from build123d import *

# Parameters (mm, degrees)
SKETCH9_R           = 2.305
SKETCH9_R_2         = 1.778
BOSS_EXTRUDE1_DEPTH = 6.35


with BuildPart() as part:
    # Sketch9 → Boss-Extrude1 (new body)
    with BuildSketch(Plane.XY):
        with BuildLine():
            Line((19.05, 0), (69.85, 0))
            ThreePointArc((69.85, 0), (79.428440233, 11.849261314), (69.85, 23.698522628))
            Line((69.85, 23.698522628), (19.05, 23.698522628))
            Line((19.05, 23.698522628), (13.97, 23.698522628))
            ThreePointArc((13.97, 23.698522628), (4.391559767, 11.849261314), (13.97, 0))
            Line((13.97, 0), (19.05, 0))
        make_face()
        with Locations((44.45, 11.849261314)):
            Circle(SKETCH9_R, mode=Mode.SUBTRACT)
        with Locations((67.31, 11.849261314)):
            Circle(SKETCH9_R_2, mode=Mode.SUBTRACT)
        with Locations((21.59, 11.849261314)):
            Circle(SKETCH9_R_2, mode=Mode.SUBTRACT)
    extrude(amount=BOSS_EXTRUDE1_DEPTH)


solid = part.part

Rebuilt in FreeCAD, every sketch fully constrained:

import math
import FreeCAD as App
import Part
import Sketcher
from FreeCAD import Vector
Q = App.Units.Quantity

doc = App.newDocument("Part")
body = doc.addObject("PartDesign::Body", "Body")

sketch1 = doc.addObject("Sketcher::SketchObject", "Sketch")
body.addObject(sketch1)
sketch1.AttachmentSupport = (doc.XY_Plane, [""])
sketch1.MapMode = "FlatFace"
sketch1.addGeometry([
    Part.ArcOfCircle(Part.Circle(Vector(67.3, 11.8, 0), Vector(0, 0, 1), 12.1), math.radians(-78), math.radians(78)),
    Part.LineSegment(Vector(69.8, 23.7, 0), Vector(14, 23.7, 0)),
    Part.ArcOfCircle(Part.Circle(Vector(16.5, 11.8, 0), Vector(0, 0, 1), 12.1), math.radians(102), math.radians(258)),
    Part.LineSegment(Vector(14, 0, 0), Vector(69.8, 0, 0)),
    Part.Circle(Vector(21.6, 11.8, 0), Vector(0, 0, 1), 1.8),
    Part.Circle(Vector(44.5, 11.8, 0), Vector(0, 0, 1), 2.3),
    Part.Circle(Vector(67.3, 11.8, 0), Vector(0, 0, 1), 1.8),
], False)
sketch1.addConstraint([
    Sketcher.Constraint("Coincident", 0, 2, 1, 1),
    Sketcher.Constraint("Coincident", 1, 2, 2, 1),
    Sketcher.Constraint("Coincident", 2, 2, 3, 1),
    Sketcher.Constraint("Coincident", 3, 2, 0, 1),
    Sketcher.Constraint("Horizontal", 1),
    Sketcher.Constraint("Horizontal", 3),
    Sketcher.Constraint("Coincident", 6, 3, 0, 3),
    Sketcher.Constraint("Equal", 0, 2),
    Sketcher.Constraint("Equal", 4, 6),
    Sketcher.Constraint("PointOnObject", 2, 2, -1),
    Sketcher.Constraint("Horizontal", 0, 3, 2, 3),
    Sketcher.Constraint("Horizontal", 2, 3, 4, 3),
    Sketcher.Constraint("Horizontal", 4, 3, 5, 3),
    Sketcher.Constraint("Vertical", 1, 2, 2, 2),
    Sketcher.Constraint("Diameter", 4, Q("0.14 in")),
    Sketcher.Constraint("DistanceX", 1, 2, 1, 1, Q("2.2 in")),
    Sketcher.Constraint("DistanceX", 2, 3, 0, 3, Q("2 in")),
    Sketcher.Constraint("DistanceX", 5, 3, 0, 2, Q("1 in")),
    Sketcher.Constraint("DistanceX", 2, 3, 4, 3, Q("0.2 in")),
    Sketcher.Constraint("Diameter", 5, Q("4.61 mm")),
    Sketcher.Constraint("DistanceX", -1, 1, 0, 3, Q("2.65 in")),
    Sketcher.Constraint("Radius", 0, Q("12.11844 mm")),
])
pad1 = doc.addObject("PartDesign::Pad", "Pad")
body.addObject(pad1)
pad1.Profile = sketch1
pad1.Length = Q("0.25 in")

doc.recompute()
